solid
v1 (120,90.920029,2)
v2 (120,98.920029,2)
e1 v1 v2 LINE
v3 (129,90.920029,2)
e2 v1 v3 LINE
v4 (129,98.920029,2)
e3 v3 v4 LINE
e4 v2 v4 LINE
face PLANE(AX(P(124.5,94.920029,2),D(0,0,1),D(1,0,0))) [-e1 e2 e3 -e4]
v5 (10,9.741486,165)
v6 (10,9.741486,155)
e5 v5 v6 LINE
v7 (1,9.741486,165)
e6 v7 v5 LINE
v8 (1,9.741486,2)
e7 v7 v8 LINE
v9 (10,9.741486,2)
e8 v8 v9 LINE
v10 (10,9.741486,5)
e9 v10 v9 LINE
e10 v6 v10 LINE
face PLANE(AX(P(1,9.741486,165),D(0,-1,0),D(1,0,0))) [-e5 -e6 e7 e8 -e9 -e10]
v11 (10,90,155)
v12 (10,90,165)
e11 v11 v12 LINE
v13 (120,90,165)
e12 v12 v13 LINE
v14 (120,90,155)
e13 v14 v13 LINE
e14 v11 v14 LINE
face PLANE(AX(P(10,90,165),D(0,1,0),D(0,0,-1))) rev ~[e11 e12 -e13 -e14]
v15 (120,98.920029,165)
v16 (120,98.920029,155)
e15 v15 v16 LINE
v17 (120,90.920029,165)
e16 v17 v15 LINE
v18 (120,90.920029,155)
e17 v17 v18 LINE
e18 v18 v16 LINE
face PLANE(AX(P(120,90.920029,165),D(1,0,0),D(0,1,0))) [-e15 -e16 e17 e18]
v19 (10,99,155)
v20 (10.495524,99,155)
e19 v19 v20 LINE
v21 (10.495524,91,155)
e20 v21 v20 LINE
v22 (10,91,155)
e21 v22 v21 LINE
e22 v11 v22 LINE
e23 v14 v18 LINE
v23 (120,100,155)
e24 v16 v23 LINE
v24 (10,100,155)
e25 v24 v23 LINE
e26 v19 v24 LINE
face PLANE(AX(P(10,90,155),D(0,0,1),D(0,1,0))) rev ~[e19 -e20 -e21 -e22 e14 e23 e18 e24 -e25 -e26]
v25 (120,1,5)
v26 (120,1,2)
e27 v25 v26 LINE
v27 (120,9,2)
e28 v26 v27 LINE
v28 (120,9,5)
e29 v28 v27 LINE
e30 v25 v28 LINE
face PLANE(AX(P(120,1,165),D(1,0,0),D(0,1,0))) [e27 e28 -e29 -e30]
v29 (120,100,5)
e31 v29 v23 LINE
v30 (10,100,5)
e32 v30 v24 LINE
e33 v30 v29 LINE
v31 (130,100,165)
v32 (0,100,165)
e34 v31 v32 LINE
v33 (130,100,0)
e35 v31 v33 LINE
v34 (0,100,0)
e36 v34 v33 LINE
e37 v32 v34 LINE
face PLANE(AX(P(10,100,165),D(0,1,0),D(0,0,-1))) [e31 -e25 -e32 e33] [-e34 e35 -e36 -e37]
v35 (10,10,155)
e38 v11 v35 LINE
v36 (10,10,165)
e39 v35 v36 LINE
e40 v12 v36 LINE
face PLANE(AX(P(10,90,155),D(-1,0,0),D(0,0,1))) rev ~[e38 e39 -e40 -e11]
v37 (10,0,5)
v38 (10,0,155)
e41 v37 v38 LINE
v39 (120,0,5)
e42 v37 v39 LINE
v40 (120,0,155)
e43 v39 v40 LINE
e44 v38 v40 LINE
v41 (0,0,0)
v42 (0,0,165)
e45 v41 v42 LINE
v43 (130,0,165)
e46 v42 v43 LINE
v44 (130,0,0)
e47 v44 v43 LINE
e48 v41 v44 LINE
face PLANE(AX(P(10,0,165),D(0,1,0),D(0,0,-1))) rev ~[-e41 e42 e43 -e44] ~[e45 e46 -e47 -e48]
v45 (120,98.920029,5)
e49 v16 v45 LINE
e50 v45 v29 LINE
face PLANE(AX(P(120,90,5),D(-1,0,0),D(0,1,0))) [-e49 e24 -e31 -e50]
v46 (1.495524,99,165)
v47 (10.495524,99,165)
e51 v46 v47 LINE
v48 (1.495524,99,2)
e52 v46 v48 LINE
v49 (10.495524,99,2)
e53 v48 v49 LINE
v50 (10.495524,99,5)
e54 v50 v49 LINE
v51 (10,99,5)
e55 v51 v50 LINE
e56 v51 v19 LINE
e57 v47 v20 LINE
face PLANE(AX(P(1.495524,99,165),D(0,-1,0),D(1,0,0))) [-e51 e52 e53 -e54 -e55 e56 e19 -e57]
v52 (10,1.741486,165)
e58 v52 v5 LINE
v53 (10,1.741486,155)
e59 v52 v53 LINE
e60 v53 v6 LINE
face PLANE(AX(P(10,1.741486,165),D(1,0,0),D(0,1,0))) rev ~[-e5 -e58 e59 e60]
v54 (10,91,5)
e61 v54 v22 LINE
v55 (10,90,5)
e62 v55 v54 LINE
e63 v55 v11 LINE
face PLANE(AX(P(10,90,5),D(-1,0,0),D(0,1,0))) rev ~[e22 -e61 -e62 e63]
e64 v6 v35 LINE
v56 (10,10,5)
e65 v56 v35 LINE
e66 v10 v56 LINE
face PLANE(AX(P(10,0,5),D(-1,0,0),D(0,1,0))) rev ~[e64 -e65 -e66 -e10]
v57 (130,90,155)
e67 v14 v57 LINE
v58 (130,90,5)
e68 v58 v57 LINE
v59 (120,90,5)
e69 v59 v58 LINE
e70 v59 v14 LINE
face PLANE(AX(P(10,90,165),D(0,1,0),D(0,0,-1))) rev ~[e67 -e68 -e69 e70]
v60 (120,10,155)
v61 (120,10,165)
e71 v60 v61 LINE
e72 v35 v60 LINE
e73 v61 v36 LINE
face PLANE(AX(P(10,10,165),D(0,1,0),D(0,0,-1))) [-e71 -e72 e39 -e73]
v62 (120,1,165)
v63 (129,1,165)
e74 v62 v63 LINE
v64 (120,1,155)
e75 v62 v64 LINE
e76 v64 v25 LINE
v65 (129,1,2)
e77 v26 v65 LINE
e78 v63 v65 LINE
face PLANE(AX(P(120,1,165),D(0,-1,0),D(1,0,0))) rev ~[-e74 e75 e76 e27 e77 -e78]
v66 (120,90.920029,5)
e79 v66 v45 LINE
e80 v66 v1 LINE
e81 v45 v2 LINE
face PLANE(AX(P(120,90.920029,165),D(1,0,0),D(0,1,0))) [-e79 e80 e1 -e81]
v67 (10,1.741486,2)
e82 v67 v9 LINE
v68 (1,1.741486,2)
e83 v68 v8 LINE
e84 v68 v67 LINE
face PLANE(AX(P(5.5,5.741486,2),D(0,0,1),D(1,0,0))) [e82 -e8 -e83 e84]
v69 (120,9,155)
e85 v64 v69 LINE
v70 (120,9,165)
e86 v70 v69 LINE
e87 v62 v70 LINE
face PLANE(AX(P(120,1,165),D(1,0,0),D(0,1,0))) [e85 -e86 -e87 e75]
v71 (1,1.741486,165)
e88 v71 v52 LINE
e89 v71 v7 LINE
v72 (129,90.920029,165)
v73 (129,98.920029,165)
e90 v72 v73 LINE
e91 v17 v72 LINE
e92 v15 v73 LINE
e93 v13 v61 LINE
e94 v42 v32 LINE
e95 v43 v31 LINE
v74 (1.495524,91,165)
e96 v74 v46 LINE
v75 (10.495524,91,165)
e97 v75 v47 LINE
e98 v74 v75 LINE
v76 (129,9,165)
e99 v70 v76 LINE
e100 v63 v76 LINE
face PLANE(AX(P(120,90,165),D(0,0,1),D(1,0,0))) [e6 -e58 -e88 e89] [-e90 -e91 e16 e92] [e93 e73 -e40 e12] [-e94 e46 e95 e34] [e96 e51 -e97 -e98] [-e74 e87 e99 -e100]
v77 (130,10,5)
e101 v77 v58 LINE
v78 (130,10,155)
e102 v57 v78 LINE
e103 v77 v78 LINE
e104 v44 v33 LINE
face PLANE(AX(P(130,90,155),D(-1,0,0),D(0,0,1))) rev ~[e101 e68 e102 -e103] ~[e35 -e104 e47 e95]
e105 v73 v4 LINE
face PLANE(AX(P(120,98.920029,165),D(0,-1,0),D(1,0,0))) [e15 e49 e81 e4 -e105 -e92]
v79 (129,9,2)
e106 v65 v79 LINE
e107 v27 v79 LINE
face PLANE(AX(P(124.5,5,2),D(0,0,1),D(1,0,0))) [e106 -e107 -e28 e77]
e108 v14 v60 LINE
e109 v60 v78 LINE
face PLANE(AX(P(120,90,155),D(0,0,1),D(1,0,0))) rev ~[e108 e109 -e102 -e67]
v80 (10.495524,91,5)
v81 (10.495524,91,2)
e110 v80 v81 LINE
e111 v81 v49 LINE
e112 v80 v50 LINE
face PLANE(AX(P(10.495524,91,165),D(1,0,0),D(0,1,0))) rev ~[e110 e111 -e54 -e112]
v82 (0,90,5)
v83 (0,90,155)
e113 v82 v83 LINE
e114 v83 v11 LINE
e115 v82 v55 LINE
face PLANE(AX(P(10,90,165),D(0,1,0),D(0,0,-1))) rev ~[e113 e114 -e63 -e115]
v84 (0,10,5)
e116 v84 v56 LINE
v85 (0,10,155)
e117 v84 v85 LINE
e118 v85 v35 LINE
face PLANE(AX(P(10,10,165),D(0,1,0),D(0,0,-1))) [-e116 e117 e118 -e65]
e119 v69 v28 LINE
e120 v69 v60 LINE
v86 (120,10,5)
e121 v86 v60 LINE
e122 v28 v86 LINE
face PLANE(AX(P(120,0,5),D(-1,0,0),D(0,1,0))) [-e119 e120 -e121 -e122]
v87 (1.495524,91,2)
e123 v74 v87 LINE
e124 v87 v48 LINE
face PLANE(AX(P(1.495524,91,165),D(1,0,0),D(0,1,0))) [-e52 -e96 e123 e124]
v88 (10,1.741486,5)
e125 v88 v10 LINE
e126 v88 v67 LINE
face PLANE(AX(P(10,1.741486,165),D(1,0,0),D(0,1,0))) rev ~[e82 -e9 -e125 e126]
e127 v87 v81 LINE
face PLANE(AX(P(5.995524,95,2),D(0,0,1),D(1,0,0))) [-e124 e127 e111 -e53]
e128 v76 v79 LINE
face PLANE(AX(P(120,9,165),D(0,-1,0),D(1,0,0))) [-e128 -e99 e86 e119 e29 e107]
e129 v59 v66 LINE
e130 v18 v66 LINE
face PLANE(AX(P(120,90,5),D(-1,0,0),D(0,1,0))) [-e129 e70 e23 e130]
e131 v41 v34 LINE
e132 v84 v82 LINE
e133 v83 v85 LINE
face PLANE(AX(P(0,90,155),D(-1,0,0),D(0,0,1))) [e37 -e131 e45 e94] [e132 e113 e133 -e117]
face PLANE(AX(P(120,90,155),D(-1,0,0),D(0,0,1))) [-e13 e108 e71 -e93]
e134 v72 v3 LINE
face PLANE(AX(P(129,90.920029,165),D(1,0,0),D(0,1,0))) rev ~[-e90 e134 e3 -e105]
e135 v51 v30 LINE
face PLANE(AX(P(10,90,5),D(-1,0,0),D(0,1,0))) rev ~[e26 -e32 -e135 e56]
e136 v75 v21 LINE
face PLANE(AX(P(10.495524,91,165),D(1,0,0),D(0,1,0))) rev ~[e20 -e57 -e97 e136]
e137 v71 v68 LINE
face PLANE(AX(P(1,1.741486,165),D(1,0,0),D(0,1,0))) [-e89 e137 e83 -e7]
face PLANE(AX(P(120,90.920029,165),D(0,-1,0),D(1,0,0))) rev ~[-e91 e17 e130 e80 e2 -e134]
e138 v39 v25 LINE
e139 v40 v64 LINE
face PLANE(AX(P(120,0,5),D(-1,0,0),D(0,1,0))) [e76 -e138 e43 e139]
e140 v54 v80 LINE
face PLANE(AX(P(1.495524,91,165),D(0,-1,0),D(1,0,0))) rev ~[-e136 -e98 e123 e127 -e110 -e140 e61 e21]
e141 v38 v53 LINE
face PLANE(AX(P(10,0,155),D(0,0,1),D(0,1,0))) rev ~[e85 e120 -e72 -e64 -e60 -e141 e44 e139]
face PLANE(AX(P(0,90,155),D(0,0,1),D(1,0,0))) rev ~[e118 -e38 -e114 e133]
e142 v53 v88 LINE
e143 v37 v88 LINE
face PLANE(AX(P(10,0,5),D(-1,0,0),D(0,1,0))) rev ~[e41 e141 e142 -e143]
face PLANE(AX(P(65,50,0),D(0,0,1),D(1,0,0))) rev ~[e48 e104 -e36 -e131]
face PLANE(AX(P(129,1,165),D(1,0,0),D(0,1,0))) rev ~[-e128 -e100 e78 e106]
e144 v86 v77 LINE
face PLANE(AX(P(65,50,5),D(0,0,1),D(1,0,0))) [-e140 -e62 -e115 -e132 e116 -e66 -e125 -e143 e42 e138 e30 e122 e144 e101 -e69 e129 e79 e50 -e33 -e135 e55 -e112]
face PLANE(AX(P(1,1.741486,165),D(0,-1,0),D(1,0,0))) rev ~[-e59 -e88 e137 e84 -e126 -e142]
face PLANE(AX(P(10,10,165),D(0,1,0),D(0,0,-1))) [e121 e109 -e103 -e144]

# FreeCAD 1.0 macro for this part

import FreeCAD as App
import Part
import Sketcher
from FreeCAD import Vector
Q = App.Units.Quantity

doc = App.newDocument("Part")
params = doc.addObject("Spreadsheet::Sheet", "Params")
for row, (alias, value) in enumerate([
    ("sketch1_width", "130 mm"),
    ("sketch1_height", "100 mm"),
    ("pad1_length", "5 mm"),
    ("sketch2_width", "10 mm"),
    ("pad2_length", "160 mm"),
    ("sketch3_width", "10 mm"),
    ("pad3_length", "110 mm"),
    ("sketch4_width", "10 mm"),
    ("pad4_length", "110 mm"),
    ("sketch5_width", "10 mm"),
    ("pad5_length", "80 mm"),
    ("sketch6_width", "10 mm"),
    ("pad6_length", "80 mm"),
    ("sketch7_width", "9 mm"),
    ("sketch7_height", "8 mm"),
    ("pocket1_length", "163 mm"),
], start=1):
    params.set(f"A{row}", alias)
    params.set(f"B{row}", "=" + value)
    params.setAlias(f"B{row}", alias)

body = doc.addObject("PartDesign::Body", "Body")

# Sketch on XY plane
sketch1 = doc.addObject("Sketcher::SketchObject", "Sketch")
body.addObject(sketch1)
sketch1.AttachmentSupport = (doc.XY_Plane, [""])
sketch1.MapMode = "FlatFace"
sketch1.addGeometry([
    Part.LineSegment(Vector(0, 100, 0), Vector(0, 0, 0)),
    Part.LineSegment(Vector(0, 0, 0), Vector(130, 0, 0)),
    Part.LineSegment(Vector(130, 0, 0), Vector(130, 100, 0)),
    Part.LineSegment(Vector(130, 100, 0), Vector(0, 100, 0)),
], False)
sketch1.addConstraint([
    Sketcher.Constraint("Coincident", 0, 2, 1, 1),
    Sketcher.Constraint("Coincident", 1, 2, 2, 1),
    Sketcher.Constraint("Coincident", 2, 2, 3, 1),
    Sketcher.Constraint("Coincident", 3, 2, 0, 1),
    Sketcher.Constraint("Vertical", 0),
    Sketcher.Constraint("Horizontal", 1),
    Sketcher.Constraint("Vertical", 2),
    Sketcher.Constraint("Horizontal", 3),
    Sketcher.Constraint("Coincident", 0, 2, -1, 1),
    Sketcher.Constraint("DistanceX", 1, 1, 1, 2, Q("130 mm")),
    Sketcher.Constraint("DistanceY", 0, 2, 0, 1, Q("100 mm")),
])
sketch1.setExpression("Constraints[9]", "Params.sketch1_width")
sketch1.setExpression("Constraints[10]", "Params.sketch1_height")
pad1 = doc.addObject("PartDesign::Pad", "Pad")
body.addObject(pad1)
pad1.Profile = sketch1
pad1.setExpression("Length", "Params.pad1_length")

# Sketch on XY plane
sketch2 = doc.addObject("Sketcher::SketchObject", "Sketch001")
body.addObject(sketch2)
sketch2.AttachmentSupport = (doc.XY_Plane, [""])
sketch2.MapMode = "FlatFace"
sketch2.AttachmentOffset = App.Placement(Vector(0, 0, 5), App.Rotation())
sketch2.addGeometry([
    Part.LineSegment(Vector(0, 100, 0), Vector(0, 90, 0)),  # 0
    Part.LineSegment(Vector(0, 90, 0), Vector(10, 90, 0)),  # 1
    Part.LineSegment(Vector(10, 90, 0), Vector(10, 100, 0)),  # 2
    Part.LineSegment(Vector(10, 100, 0), Vector(0, 100, 0)),  # 3
    Part.LineSegment(Vector(120, 100, 0), Vector(120, 90, 0)),  # 4
    Part.LineSegment(Vector(120, 90, 0), Vector(130, 90, 0)),  # 5
    Part.LineSegment(Vector(130, 90, 0), Vector(130, 100, 0)),  # 6
    Part.LineSegment(Vector(130, 100, 0), Vector(120, 100, 0)),  # 7
    Part.LineSegment(Vector(0, 10, 0), Vector(0, 0, 0)),  # 8
    Part.LineSegment(Vector(0, 0, 0), Vector(10, 0, 0)),  # 9
    Part.LineSegment(Vector(10, 0, 0), Vector(10, 10, 0)),  # 10
    Part.LineSegment(Vector(10, 10, 0), Vector(0, 10, 0)),  # 11
    Part.LineSegment(Vector(120, 10, 0), Vector(120, 0, 0)),  # 12
    Part.LineSegment(Vector(120, 0, 0), Vector(130, 0, 0)),  # 13
    Part.LineSegment(Vector(130, 0, 0), Vector(130, 10, 0)),  # 14
    Part.LineSegment(Vector(130, 10, 0), Vector(120, 10, 0)),  # 15
], False)
sketch2.addConstraint([
    Sketcher.Constraint("Coincident", 0, 2, 1, 1),
    Sketcher.Constraint("Coincident", 1, 2, 2, 1),
    Sketcher.Constraint("Coincident", 2, 2, 3, 1),
    Sketcher.Constraint("Coincident", 3, 2, 0, 1),
    Sketcher.Constraint("Coincident", 4, 2, 5, 1),
    Sketcher.Constraint("Coincident", 5, 2, 6, 1),
    Sketcher.Constraint("Coincident", 6, 2, 7, 1),
    Sketcher.Constraint("Coincident", 7, 2, 4, 1),
    Sketcher.Constraint("Coincident", 8, 2, 9, 1),
    Sketcher.Constraint("Coincident", 9, 2, 10, 1),
    Sketcher.Constraint("Coincident", 10, 2, 11, 1),
    Sketcher.Constraint("Coincident", 11, 2, 8, 1),
    Sketcher.Constraint("Coincident", 12, 2, 13, 1),
    Sketcher.Constraint("Coincident", 13, 2, 14, 1),
    Sketcher.Constraint("Coincident", 14, 2, 15, 1),
    Sketcher.Constraint("Coincident", 15, 2, 12, 1),
    Sketcher.Constraint("Vertical", 0),
    Sketcher.Constraint("Horizontal", 1),
    Sketcher.Constraint("Vertical", 2),
    Sketcher.Constraint("Horizontal", 3),
    Sketcher.Constraint("Vertical", 4),
    Sketcher.Constraint("Horizontal", 5),
    Sketcher.Constraint("Vertical", 6),
    Sketcher.Constraint("Horizontal", 7),
    Sketcher.Constraint("Vertical", 8),
    Sketcher.Constraint("Horizontal", 9),
    Sketcher.Constraint("Vertical", 10),
    Sketcher.Constraint("Horizontal", 11),
    Sketcher.Constraint("Vertical", 12),
    Sketcher.Constraint("Horizontal", 13),
    Sketcher.Constraint("Vertical", 14),
    Sketcher.Constraint("Horizontal", 15),
    Sketcher.Constraint("Coincident", 8, 2, -1, 1),
    Sketcher.Constraint("PointOnObject", 0, 2, -2),
    Sketcher.Constraint("PointOnObject", 12, 2, -1),
    Sketcher.Constraint("Horizontal", 1, 2, 4, 2),
    Sketcher.Constraint("Horizontal", 3, 2, 6, 2),
    Sketcher.Constraint("Horizontal", 11, 2, 14, 2),
    Sketcher.Constraint("Vertical", 2, 2, 9, 2),
    Sketcher.Constraint("Vertical", 7, 2, 12, 2),
    Sketcher.Constraint("Vertical", 6, 2, 13, 2),
    Sketcher.Constraint("Equal", 3, 5),
    Sketcher.Constraint("Equal", 15, 0),
    Sketcher.Constraint("Equal", 6, 8),
    Sketcher.Constraint("DistanceX", 1, 1, 1, 2, Q("10 mm")),
    Sketcher.Constraint("DistanceY", -1, 1, 0, 2, Q("90 mm")),
    Sketcher.Constraint("DistanceX", -1, 1, 4, 2, Q("120 mm")),
])
sketch2.setExpression("Constraints[44]", "Params.sketch2_width")
pad2 = doc.addObject("PartDesign::Pad", "Pad001")
body.addObject(pad2)
pad2.Profile = sketch2
pad2.setExpression("Length", "Params.pad2_length")

# Sketch on YZ plane
sketch3 = doc.addObject("Sketcher::SketchObject", "Sketch002")
body.addObject(sketch3)
sketch3.AttachmentSupport = (doc.YZ_Plane, [""])
sketch3.MapMode = "FlatFace"
sketch3.AttachmentOffset = App.Placement(Vector(0, 0, 10), App.Rotation())
sketch3.addGeometry([
    Part.LineSegment(Vector(10, 165, 0), Vector(0, 165, 0)),
    Part.LineSegment(Vector(0, 165, 0), Vector(0, 155, 0)),
    Part.LineSegment(Vector(0, 155, 0), Vector(10, 155, 0)),
    Part.LineSegment(Vector(10, 155, 0), Vector(10, 165, 0)),
], False)
sketch3.addConstraint([
    Sketcher.Constraint("Coincident", 0, 2, 1, 1),
    Sketcher.Constraint("Coincident", 1, 2, 2, 1),
    Sketcher.Constraint("Coincident", 2, 2, 3, 1),
    Sketcher.Constraint("Coincident", 3, 2, 0, 1),
    Sketcher.Constraint("Horizontal", 0),
    Sketcher.Constraint("Vertical", 1),
    Sketcher.Constraint("Horizontal", 2),
    Sketcher.Constraint("Vertical", 3),
    Sketcher.Constraint("PointOnObject", 0, 2, -2),
    Sketcher.Constraint("Equal", 2, 1),
    Sketcher.Constraint("DistanceX", 0, 2, 0, 1, Q("10 mm")),
    Sketcher.Constraint("DistanceY", -1, 1, 0, 2, Q("165 mm")),
])
sketch3.setExpression("Constraints[10]", "Params.sketch3_width")
pad3 = doc.addObject("PartDesign::Pad", "Pad002")
body.addObject(pad3)
pad3.Profile = sketch3
pad3.setExpression("Length", "Params.pad3_length")

# Sketch on YZ plane
sketch4 = doc.addObject("Sketcher::SketchObject", "Sketch003")
body.addObject(sketch4)
sketch4.AttachmentSupport = (doc.YZ_Plane, [""])
sketch4.MapMode = "FlatFace"
sketch4.AttachmentOffset = App.Placement(Vector(0, 0, 10), App.Rotation())
sketch4.addGeometry([
    Part.LineSegment(Vector(100, 165, 0), Vector(90, 165, 0)),
    Part.LineSegment(Vector(90, 165, 0), Vector(90, 155, 0)),
    Part.LineSegment(Vector(90, 155, 0), Vector(100, 155, 0)),
    Part.LineSegment(Vector(100, 155, 0), Vector(100, 165, 0)),
], False)
sketch4.addConstraint([
    Sketcher.Constraint("Coincident", 0, 2, 1, 1),
    Sketcher.Constraint("Coincident", 1, 2, 2, 1),
    Sketcher.Constraint("Coincident", 2, 2, 3, 1),
    Sketcher.Constraint("Coincident", 3, 2, 0, 1),
    Sketcher.Constraint("Horizontal", 0),
    Sketcher.Constraint("Vertical", 1),
    Sketcher.Constraint("Horizontal", 2),
    Sketcher.Constraint("Vertical", 3),
    Sketcher.Constraint("Equal", 2, 1),
    Sketcher.Constraint("DistanceX", 0, 2, 0, 1, Q("10 mm")),
    Sketcher.Constraint("DistanceX", -1, 1, 0, 2, Q("90 mm")),
    Sketcher.Constraint("DistanceY", -1, 1, 0, 2, Q("165 mm")),
])
sketch4.setExpression("Constraints[9]", "Params.sketch4_width")
pad4 = doc.addObject("PartDesign::Pad", "Pad003")
body.addObject(pad4)
pad4.Profile = sketch4
pad4.setExpression("Length", "Params.pad4_length")

# Sketch on XZ plane
sketch5 = doc.addObject("Sketcher::SketchObject", "Sketch004")
body.addObject(sketch5)
sketch5.AttachmentSupport = (doc.XZ_Plane, [""])
sketch5.MapMode = "FlatFace"
sketch5.AttachmentOffset = App.Placement(Vector(0, 0, -90), App.Rotation())
sketch5.addGeometry([
    Part.LineSegment(Vector(0, 165, 0), Vector(0, 155, 0)),
    Part.LineSegment(Vector(0, 155, 0), Vector(10, 155, 0)),
    Part.LineSegment(Vector(10, 155, 0), Vector(10, 165, 0)),
    Part.LineSegment(Vector(10, 165, 0), Vector(0, 165, 0)),
], False)
sketch5.addConstraint([
    Sketcher.Constraint("Coincident", 0, 2, 1, 1),
    Sketcher.Constraint("Coincident", 1, 2, 2, 1),
    Sketcher.Constraint("Coincident", 2, 2, 3, 1),
    Sketcher.Constraint("Coincident", 3, 2, 0, 1),
    Sketcher.Constraint("Vertical", 0),
    Sketcher.Constraint("Horizontal", 1),
    Sketcher.Constraint("Vertical", 2),
    Sketcher.Constraint("Horizontal", 3),
    Sketcher.Constraint("PointOnObject", 0, 2, -2),
    Sketcher.Constraint("Equal", 3, 0),
    Sketcher.Constraint("DistanceX", 1, 1, 1, 2, Q("10 mm")),
    Sketcher.Constraint("DistanceY", -1, 1, 0, 2, Q("155 mm")),
])
sketch5.setExpression("Constraints[10]", "Params.sketch5_width")
pad5 = doc.addObject("PartDesign::Pad", "Pad004")
body.addObject(pad5)
pad5.Profile = sketch5
pad5.setExpression("Length", "Params.pad5_length")

# Sketch on XZ plane
sketch6 = doc.addObject("Sketcher::SketchObject", "Sketch005")
body.addObject(sketch6)
sketch6.AttachmentSupport = (doc.XZ_Plane, [""])
sketch6.MapMode = "FlatFace"
sketch6.AttachmentOffset = App.Placement(Vector(0, 0, -90), App.Rotation())
sketch6.addGeometry([
    Part.LineSegment(Vector(120, 165, 0), Vector(120, 155, 0)),
    Part.LineSegment(Vector(120, 155, 0), Vector(130, 155, 0)),
    Part.LineSegment(Vector(130, 155, 0), Vector(130, 165, 0)),
    Part.LineSegment(Vector(130, 165, 0), Vector(120, 165, 0)),
], False)
sketch6.addConstraint([
    Sketcher.Constraint("Coincident", 0, 2, 1, 1),
    Sketcher.Constraint("Coincident", 1, 2, 2, 1),
    Sketcher.Constraint("Coincident", 2, 2, 3, 1),
    Sketcher.Constraint("Coincident", 3, 2, 0, 1),
    Sketcher.Constraint("Vertical", 0),
    Sketcher.Constraint("Horizontal", 1),
    Sketcher.Constraint("Vertical", 2),
    Sketcher.Constraint("Horizontal", 3),
    Sketcher.Constraint("Equal", 3, 0),
    Sketcher.Constraint("DistanceX", 1, 1, 1, 2, Q("10 mm")),
    Sketcher.Constraint("DistanceX", -1, 1, 0, 2, Q("120 mm")),
    Sketcher.Constraint("DistanceY", -1, 1, 0, 2, Q("155 mm")),
])
sketch6.setExpression("Constraints[9]", "Params.sketch6_width")
pad6 = doc.addObject("PartDesign::Pad", "Pad005")
body.addObject(pad6)
pad6.Profile = sketch6
pad6.setExpression("Length", "Params.pad6_length")

# Sketch on XY plane
sketch7 = doc.addObject("Sketcher::SketchObject", "Sketch006")
body.addObject(sketch7)
sketch7.AttachmentSupport = (doc.XY_Plane, [""])
sketch7.MapMode = "FlatFace"
sketch7.AttachmentOffset = App.Placement(Vector(0, 0, 165), App.Rotation())
sketch7.addGeometry([
    Part.LineSegment(Vector(120, 99, 0), Vector(120, 91, 0)),  # 0
    Part.LineSegment(Vector(120, 91, 0), Vector(129, 91, 0)),  # 1
    Part.LineSegment(Vector(129, 91, 0), Vector(129, 99, 0)),  # 2
    Part.LineSegment(Vector(129, 99, 0), Vector(120, 99, 0)),  # 3
    Part.LineSegment(Vector(120, 9, 0), Vector(120, 1, 0)),  # 4
    Part.LineSegment(Vector(120, 1, 0), Vector(129, 1, 0)),  # 5
    Part.LineSegment(Vector(129, 1, 0), Vector(129, 9, 0)),  # 6
    Part.LineSegment(Vector(129, 9, 0), Vector(120, 9, 0)),  # 7
    Part.LineSegment(Vector(1, 10, 0), Vector(1, 2, 0)),  # 8
    Part.LineSegment(Vector(1, 2, 0), Vector(10, 2, 0)),  # 9
    Part.LineSegment(Vector(10, 2, 0), Vector(10, 10, 0)),  # 10
    Part.LineSegment(Vector(10, 10, 0), Vector(1, 10, 0)),  # 11
    Part.LineSegment(Vector(1, 99, 0), Vector(1, 91, 0)),  # 12
    Part.LineSegment(Vector(1, 91, 0), Vector(10, 91, 0)),  # 13
    Part.LineSegment(Vector(10, 91, 0), Vector(10, 99, 0)),  # 14
    Part.LineSegment(Vector(10, 99, 0), Vector(1, 99, 0)),  # 15
], False)
sketch7.addConstraint([
    Sketcher.Constraint("Coincident", 0, 2, 1, 1),
    Sketcher.Constraint("Coincident", 1, 2, 2, 1),
    Sketcher.Constraint("Coincident", 2, 2, 3, 1),
    Sketcher.Constraint("Coincident", 3, 2, 0, 1),
    Sketcher.Constraint("Coincident", 4, 2, 5, 1),
    Sketcher.Constraint("Coincident", 5, 2, 6, 1),
    Sketcher.Constraint("Coincident", 6, 2, 7, 1),
    Sketcher.Constraint("Coincident", 7, 2, 4, 1),
    Sketcher.Constraint("Coincident", 8, 2, 9, 1),
    Sketcher.Constraint("Coincident", 9, 2, 10, 1),
    Sketcher.Constraint("Coincident", 10, 2, 11, 1),
    Sketcher.Constraint("Coincident", 11, 2, 8, 1),
    Sketcher.Constraint("Coincident", 12, 2, 13, 1),
    Sketcher.Constraint("Coincident", 13, 2, 14, 1),
    Sketcher.Constraint("Coincident", 14, 2, 15, 1),
    Sketcher.Constraint("Coincident", 15, 2, 12, 1),
    Sketcher.Constraint("Vertical", 0),
    Sketcher.Constraint("Horizontal", 1),
    Sketcher.Constraint("Vertical", 2),
    Sketcher.Constraint("Horizontal", 3),
    Sketcher.Constraint("Vertical", 4),
    Sketcher.Constraint("Horizontal", 5),
    Sketcher.Constraint("Vertical", 6),
    Sketcher.Constraint("Horizontal", 7),
    Sketcher.Constraint("Vertical", 8),
    Sketcher.Constraint("Horizontal", 9),
    Sketcher.Constraint("Vertical", 10),
    Sketcher.Constraint("Horizontal", 11),
    Sketcher.Constraint("Vertical", 12),
    Sketcher.Constraint("Horizontal", 13),
    Sketcher.Constraint("Vertical", 14),
    Sketcher.Constraint("Horizontal", 15),
    Sketcher.Constraint("Vertical", 3, 2, 4, 2),
    Sketcher.Constraint("Vertical", 2, 2, 5, 2),
    Sketcher.Constraint("Equal", 7, 9),
    Sketcher.Constraint("Equal", 11, 13),
    Sketcher.Constraint("Equal", 2, 4),
    Sketcher.Constraint("Equal", 6, 8),
    Sketcher.Constraint("Equal", 10, 12),
    Sketcher.Constraint("DistanceX", 1, 1, 1, 2, Q("9 mm")),
    Sketcher.Constraint("DistanceY", 0, 2, 0, 1, Q("8 mm")),
    Sketcher.Constraint("DistanceX", -1, 1, 0, 2, Q("120 mm")),
    Sketcher.Constraint("DistanceY", -1, 1, 4, 2, Q("1 mm")),
    Sketcher.Constraint("DistanceX", -1, 1, 8, 2, Q("1 mm")),
    Sketcher.Constraint("DistanceY", -1, 1, 12, 2, Q("91 mm")),
    Sketcher.Constraint("DistanceY", -1, 1, 0, 2, Q("90.920029 mm")),
    Sketcher.Constraint("DistanceY", -1, 1, 8, 2, Q("1.741486 mm")),
    Sketcher.Constraint("DistanceX", -1, 1, 12, 2, Q("1.495524 mm")),
])
sketch7.setExpression("Constraints[39]", "Params.sketch7_width")
sketch7.setExpression("Constraints[40]", "Params.sketch7_height")
pocket1 = doc.addObject("PartDesign::Pocket", "Pocket")
body.addObject(pocket1)
pocket1.Profile = sketch7
pocket1.setExpression("Length", "Params.pocket1_length")

doc.recompute()
